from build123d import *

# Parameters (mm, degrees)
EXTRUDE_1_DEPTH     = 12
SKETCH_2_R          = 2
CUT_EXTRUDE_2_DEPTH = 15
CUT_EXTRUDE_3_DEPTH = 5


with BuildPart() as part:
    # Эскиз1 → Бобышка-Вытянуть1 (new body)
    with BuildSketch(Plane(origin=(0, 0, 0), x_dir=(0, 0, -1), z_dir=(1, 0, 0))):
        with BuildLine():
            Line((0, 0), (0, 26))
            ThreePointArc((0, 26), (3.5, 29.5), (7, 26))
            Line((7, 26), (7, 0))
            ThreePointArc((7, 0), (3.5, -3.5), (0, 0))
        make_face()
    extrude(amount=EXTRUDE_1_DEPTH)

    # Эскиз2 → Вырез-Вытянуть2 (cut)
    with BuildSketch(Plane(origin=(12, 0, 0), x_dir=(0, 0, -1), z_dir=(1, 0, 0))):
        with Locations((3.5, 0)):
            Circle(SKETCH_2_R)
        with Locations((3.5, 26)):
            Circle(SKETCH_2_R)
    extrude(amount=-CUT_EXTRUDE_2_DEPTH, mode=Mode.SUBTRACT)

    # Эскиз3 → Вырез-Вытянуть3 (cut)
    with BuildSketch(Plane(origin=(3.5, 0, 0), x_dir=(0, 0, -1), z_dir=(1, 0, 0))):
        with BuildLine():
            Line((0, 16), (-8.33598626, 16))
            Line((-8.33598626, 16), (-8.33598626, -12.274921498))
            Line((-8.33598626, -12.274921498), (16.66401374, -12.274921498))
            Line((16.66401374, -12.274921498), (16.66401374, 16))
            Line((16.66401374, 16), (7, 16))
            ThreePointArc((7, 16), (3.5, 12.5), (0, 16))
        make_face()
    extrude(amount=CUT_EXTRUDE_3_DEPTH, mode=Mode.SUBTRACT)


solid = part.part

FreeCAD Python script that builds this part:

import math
import FreeCAD as App
import Part
import Sketcher
from FreeCAD import Vector

doc = App.newDocument("Part")
body = doc.addObject("PartDesign::Body", "Body")

# Sketch on YZ plane
sketch1 = doc.addObject("Sketcher::SketchObject", "Sketch")
body.addObject(sketch1)
sketch1.AttachmentSupport = (doc.YZ_Plane, [""])
sketch1.MapMode = "FlatFace"
sketch1.addGeometry([
    Part.LineSegment(Vector(26, 0, 0), Vector(0, 0, 0)),
    Part.ArcOfCircle(Part.Circle(Vector(0, -3.5, 0), Vector(0, 0, 1), 3.5), math.radians(90), math.radians(270)),
    Part.LineSegment(Vector(0, -7, 0), Vector(26, -7, 0)),
    Part.ArcOfCircle(Part.Circle(Vector(26, -3.5, 0), Vector(0, 0, 1), 3.5), math.radians(-90), math.radians(90)),
], False)
sketch1.addConstraint([
    Sketcher.Constraint("Tangent", 0, 2, 1, 1),
    Sketcher.Constraint("Tangent", 1, 2, 2, 1),
    Sketcher.Constraint("Tangent", 2, 2, 3, 1),
    Sketcher.Constraint("Tangent", 3, 2, 0, 1),
    Sketcher.Constraint("Horizontal", 0),
    Sketcher.Constraint("Horizontal", 2),
    Sketcher.Constraint("Coincident", 0, 2, -1, 1),
    Sketcher.Constraint("Radius", 1, 3.5),
    Sketcher.Constraint("DistanceX", 0, 2, 0, 1, 26.0),
])
pad1 = doc.addObject("PartDesign::Pad", "Pad")
body.addObject(pad1)
pad1.Profile = sketch1
pad1.Length = 12

# Sketch on YZ plane
sketch2 = doc.addObject("Sketcher::SketchObject", "Sketch001")
body.addObject(sketch2)
sketch2.AttachmentSupport = (doc.YZ_Plane, [""])
sketch2.MapMode = "FlatFace"
sketch2.AttachmentOffset = App.Placement(Vector(0, 0, 12), App.Rotation())
sketch2.addGeometry([
    Part.Circle(Vector(0, -3.5, 0), Vector(0, 0, 1), 2),
    Part.Circle(Vector(26, -3.5, 0), Vector(0, 0, 1), 2),
], False)
sketch2.addConstraint([
    Sketcher.Constraint("Equal", 0, 1),
    Sketcher.Constraint("PointOnObject", 0, 3, -2),
    Sketcher.Constraint("Horizontal", 0, 3, 1, 3),
    Sketcher.Constraint("Diameter", 0, 4.0),
    Sketcher.Constraint("DistanceX", -1, 1, 1, 3, 26.0),
    Sketcher.Constraint("DistanceY", 0, 3, -1, 1, 3.5),
])
pocket1 = doc.addObject("PartDesign::Pocket", "Pocket")
body.addObject(pocket1)
pocket1.Profile = sketch2
pocket1.Length = 15

# Sketch on YZ plane
sketch3 = doc.addObject("Sketcher::SketchObject", "Sketch002")
body.addObject(sketch3)
sketch3.AttachmentSupport = (doc.YZ_Plane, [""])
sketch3.MapMode = "FlatFace"
sketch3.AttachmentOffset = App.Placement(Vector(0, 0, 3.5), App.Rotation())
sketch3.addGeometry([
    Part.LineSegment(Vector(16, 0, 0), Vector(16, 8.3, 0)),  # 0
    Part.LineSegment(Vector(16, 8.3, 0), Vector(-12.3, 8.3, 0)),  # 1
    Part.LineSegment(Vector(-12.3, 8.3, 0), Vector(-12.3, -16.7, 0)),  # 2
    Part.LineSegment(Vector(-12.3, -16.7, 0), Vector(16, -16.7, 0)),  # 3
    Part.LineSegment(Vector(16, -16.7, 0), Vector(16, -7, 0)),  # 4
    Part.ArcOfCircle(Part.Circle(Vector(16, -3.5, 0), Vector(0, 0, 1), 3.5), math.radians(90), math.radians(270)),  # 5
], False)
sketch3.addConstraint([
    Sketcher.Constraint("Coincident", 0, 2, 1, 1),
    Sketcher.Constraint("Coincident", 1, 2, 2, 1),
    Sketcher.Constraint("Coincident", 2, 2, 3, 1),
    Sketcher.Constraint("Coincident", 3, 2, 4, 1),
    Sketcher.Constraint("Coincident", 4, 2, 5, 2),
    Sketcher.Constraint("Coincident", 5, 1, 0, 1),
    Sketcher.Constraint("Vertical", 0),
    Sketcher.Constraint("Horizontal", 1),
    Sketcher.Constraint("Vertical", 2),
    Sketcher.Constraint("Horizontal", 3),
    Sketcher.Constraint("Vertical", 4),
    Sketcher.Constraint("PointOnObject", 5, 1, -1),
    Sketcher.Constraint("Vertical", 5, 3, 0, 2),
    Sketcher.Constraint("Vertical", 0, 2, 3, 2),
    Sketcher.Constraint("Radius", 5, 3.5),
    Sketcher.Constraint("DistanceY", 2, 2, 2, 1, 25.0),
    Sketcher.Constraint("DistanceX", -1, 1, 5, 3, 16.0),
    Sketcher.Constraint("DistanceX", 1, 2, 1, 1, 28.274921),
    Sketcher.Constraint("DistanceY", 0, 1, 0, 2, 8.335986),
])
pocket2 = doc.addObject("PartDesign::Pocket", "Pocket001")
body.addObject(pocket2)
pocket2.Profile = sketch3
pocket2.Length = 5
pocket2.Reversed = True

doc.recompute()
